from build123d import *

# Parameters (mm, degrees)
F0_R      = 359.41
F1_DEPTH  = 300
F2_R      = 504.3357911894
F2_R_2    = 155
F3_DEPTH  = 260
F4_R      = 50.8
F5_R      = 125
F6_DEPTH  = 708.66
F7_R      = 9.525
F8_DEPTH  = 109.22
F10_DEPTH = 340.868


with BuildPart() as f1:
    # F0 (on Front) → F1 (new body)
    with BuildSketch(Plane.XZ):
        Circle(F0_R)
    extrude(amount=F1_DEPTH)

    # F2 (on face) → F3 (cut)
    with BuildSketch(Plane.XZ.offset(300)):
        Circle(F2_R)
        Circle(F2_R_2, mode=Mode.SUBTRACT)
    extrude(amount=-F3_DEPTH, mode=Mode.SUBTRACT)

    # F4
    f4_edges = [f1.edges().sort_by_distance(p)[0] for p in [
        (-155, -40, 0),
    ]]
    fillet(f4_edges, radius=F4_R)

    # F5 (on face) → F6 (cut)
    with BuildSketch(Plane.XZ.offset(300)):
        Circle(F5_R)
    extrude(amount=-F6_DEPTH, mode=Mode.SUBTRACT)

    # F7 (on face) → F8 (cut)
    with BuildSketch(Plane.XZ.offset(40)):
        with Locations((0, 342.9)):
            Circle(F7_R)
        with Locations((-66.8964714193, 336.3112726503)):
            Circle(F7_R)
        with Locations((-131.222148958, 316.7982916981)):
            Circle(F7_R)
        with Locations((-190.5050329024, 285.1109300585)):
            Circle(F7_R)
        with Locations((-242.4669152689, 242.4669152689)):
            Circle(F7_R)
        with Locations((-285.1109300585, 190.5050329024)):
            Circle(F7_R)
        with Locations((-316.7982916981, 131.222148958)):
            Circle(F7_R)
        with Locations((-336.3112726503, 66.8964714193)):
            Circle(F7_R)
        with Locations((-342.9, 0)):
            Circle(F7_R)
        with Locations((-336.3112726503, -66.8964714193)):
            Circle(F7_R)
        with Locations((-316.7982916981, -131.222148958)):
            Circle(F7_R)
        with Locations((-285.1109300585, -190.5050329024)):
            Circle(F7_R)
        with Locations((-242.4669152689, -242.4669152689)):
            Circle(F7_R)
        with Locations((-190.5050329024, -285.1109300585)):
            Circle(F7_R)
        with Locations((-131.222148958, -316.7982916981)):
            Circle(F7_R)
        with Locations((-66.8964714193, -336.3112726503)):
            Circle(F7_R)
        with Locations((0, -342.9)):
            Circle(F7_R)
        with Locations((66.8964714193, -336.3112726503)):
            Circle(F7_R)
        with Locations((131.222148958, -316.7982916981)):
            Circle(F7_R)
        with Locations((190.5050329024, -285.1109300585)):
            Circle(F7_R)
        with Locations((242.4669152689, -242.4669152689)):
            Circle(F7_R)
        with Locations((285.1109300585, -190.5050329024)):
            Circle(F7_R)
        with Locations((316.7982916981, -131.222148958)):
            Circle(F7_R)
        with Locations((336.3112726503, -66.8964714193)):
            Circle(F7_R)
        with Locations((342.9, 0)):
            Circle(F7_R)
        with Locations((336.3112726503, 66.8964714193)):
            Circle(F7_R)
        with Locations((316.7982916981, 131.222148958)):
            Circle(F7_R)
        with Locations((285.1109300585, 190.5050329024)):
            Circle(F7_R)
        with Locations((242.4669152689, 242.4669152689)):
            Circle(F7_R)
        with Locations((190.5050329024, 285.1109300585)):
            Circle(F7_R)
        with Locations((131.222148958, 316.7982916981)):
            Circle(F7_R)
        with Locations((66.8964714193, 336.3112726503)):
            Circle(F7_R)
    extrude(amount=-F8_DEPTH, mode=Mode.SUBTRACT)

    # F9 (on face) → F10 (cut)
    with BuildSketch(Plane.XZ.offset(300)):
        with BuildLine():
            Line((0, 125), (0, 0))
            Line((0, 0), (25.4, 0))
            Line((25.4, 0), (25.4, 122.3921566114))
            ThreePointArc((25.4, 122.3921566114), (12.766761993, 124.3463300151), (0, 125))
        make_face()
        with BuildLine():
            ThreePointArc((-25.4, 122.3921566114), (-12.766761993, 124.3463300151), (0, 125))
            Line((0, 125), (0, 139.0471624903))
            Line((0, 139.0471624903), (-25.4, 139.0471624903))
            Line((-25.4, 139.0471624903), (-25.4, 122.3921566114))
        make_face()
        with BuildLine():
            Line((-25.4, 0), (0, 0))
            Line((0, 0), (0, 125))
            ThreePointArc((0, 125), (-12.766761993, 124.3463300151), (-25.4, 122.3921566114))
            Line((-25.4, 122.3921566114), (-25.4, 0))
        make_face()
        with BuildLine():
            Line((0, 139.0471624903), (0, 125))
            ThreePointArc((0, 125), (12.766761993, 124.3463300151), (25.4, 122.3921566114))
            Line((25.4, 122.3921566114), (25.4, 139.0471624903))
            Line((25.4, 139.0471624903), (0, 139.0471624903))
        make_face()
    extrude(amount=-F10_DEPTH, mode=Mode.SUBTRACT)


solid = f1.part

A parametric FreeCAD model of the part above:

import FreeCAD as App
import Part
import Sketcher
Q = App.Units.Quantity


def edges_at(feature, points):
    """Names of the edges that pass closest to the given points."""
    edges = feature.Shape.Edges
    near = lambda p: min(range(len(edges)), key=lambda i: edges[i].distToShape(Part.Vertex(*p))[0])
    return sorted({f"Edge{near(p) + 1}" for p in points})

doc = App.newDocument("Part")
body = doc.addObject("PartDesign::Body", "Body")

# Sketch on XZ plane
sketch1 = body.newObject("Sketcher::SketchObject", "Sketch")
sketch1.AttachmentSupport = (doc.getObject("XZ_Plane"), [""])
sketch1.MapMode = "FlatFace"
sketch1.addGeometry(Part.Circle(App.Vector(0, 0, 0), App.Vector(0, 0, 1), 359), False)
sketch1.addConstraint(Sketcher.Constraint("Coincident", 0, 3, -1, 1))
sketch1.addConstraint(Sketcher.Constraint("Diameter", 0, Q("28.3 in")))
pad1 = body.newObject("PartDesign::Pad", "Pad")
pad1.Profile = sketch1
pad1.Length = 300

# Sketch on XZ plane
sketch2 = body.newObject("Sketcher::SketchObject", "Sketch001")
sketch2.AttachmentSupport = (doc.getObject("XZ_Plane"), [""])
sketch2.MapMode = "FlatFace"
sketch2.AttachmentOffset = App.Placement(App.Vector(0, 0, 300), App.Rotation())
sketch2.addGeometry(Part.Circle(App.Vector(0, 0, 0), App.Vector(0, 0, 1), 504), False)
sketch2.addGeometry(Part.Circle(App.Vector(0, 0, 0), App.Vector(0, 0, 1), 155), False)
sketch2.addConstraint(Sketcher.Constraint("Coincident", 0, 3, -1, 1))
sketch2.addConstraint(Sketcher.Constraint("Coincident", 1, 3, -1, 1))
sketch2.addConstraint(Sketcher.Constraint("Diameter", 1, 310.0))
sketch2.addConstraint(Sketcher.Constraint("Diameter", 0, 1008.671582))
pocket1 = body.newObject("PartDesign::Pocket", "Pocket")
pocket1.Profile = sketch2
pocket1.Length = 260
doc.recompute()

fillet = body.newObject("PartDesign::Fillet", "Fillet")
fillet.Base = (pocket1, edges_at(pocket1, [(-155, -40, 0)]))
fillet.Radius = Q("2 in")

# Sketch on XZ plane
sketch3 = body.newObject("Sketcher::SketchObject", "Sketch002")
sketch3.AttachmentSupport = (doc.getObject("XZ_Plane"), [""])
sketch3.MapMode = "FlatFace"
sketch3.AttachmentOffset = App.Placement(App.Vector(0, 0, 300), App.Rotation())
sketch3.addGeometry(Part.Circle(App.Vector(0, 0, 0), App.Vector(0, 0, 1), 125), False)
sketch3.addConstraint(Sketcher.Constraint("Coincident", 0, 3, -1, 1))
sketch3.addConstraint(Sketcher.Constraint("Diameter", 0, 250.0))
pocket2 = body.newObject("PartDesign::Pocket", "Pocket001")
pocket2.Profile = sketch3
pocket2.Length = Q("27.9 in")

# Sketch on XZ plane
sketch4 = body.newObject("Sketcher::SketchObject", "Sketch003")
sketch4.AttachmentSupport = (doc.getObject("XZ_Plane"), [""])
sketch4.MapMode = "FlatFace"
sketch4.AttachmentOffset = App.Placement(App.Vector(0, 0, 40), App.Rotation())
sketch4.addGeometry(Part.Circle(App.Vector(0, 343, 0), App.Vector(0, 0, 1), 10), False)
sketch4.addGeometry(Part.Circle(App.Vector(-67, 336, 0), App.Vector(0, 0, 1), 10), False)
sketch4.addGeometry(Part.Circle(App.Vector(-131, 317, 0), App.Vector(0, 0, 1), 10), False)
sketch4.addGeometry(Part.Circle(App.Vector(-191, 285, 0), App.Vector(0, 0, 1), 10), False)
sketch4.addGeometry(Part.Circle(App.Vector(-242, 242, 0), App.Vector(0, 0, 1), 10), False)
sketch4.addGeometry(Part.Circle(App.Vector(-285, 191, 0), App.Vector(0, 0, 1), 10), False)
sketch4.addGeometry(Part.Circle(App.Vector(-317, 131, 0), App.Vector(0, 0, 1), 10), False)
sketch4.addGeometry(Part.Circle(App.Vector(-336, 67, 0), App.Vector(0, 0, 1), 10), False)
sketch4.addGeometry(Part.Circle(App.Vector(-343, 0, 0), App.Vector(0, 0, 1), 10), False)
sketch4.addGeometry(Part.Circle(App.Vector(-336, -67, 0), App.Vector(0, 0, 1), 10), False)
sketch4.addGeometry(Part.Circle(App.Vector(-317, -131, 0), App.Vector(0, 0, 1), 10), False)
sketch4.addGeometry(Part.Circle(App.Vector(-285, -191, 0), App.Vector(0, 0, 1), 10), False)
sketch4.addGeometry(Part.Circle(App.Vector(-242, -242, 0), App.Vector(0, 0, 1), 10), False)
sketch4.addGeometry(Part.Circle(App.Vector(-191, -285, 0), App.Vector(0, 0, 1), 10), False)
sketch4.addGeometry(Part.Circle(App.Vector(-131, -317, 0), App.Vector(0, 0, 1), 10), False)
sketch4.addGeometry(Part.Circle(App.Vector(-67, -336, 0), App.Vector(0, 0, 1), 10), False)
sketch4.addGeometry(Part.Circle(App.Vector(0, -343, 0), App.Vector(0, 0, 1), 10), False)
sketch4.addGeometry(Part.Circle(App.Vector(67, -336, 0), App.Vector(0, 0, 1), 10), False)
sketch4.addGeometry(Part.Circle(App.Vector(131, -317, 0), App.Vector(0, 0, 1), 10), False)
sketch4.addGeometry(Part.Circle(App.Vector(191, -285, 0), App.Vector(0, 0, 1), 10), False)
sketch4.addGeometry(Part.Circle(App.Vector(242, -242, 0), App.Vector(0, 0, 1), 10), False)
sketch4.addGeometry(Part.Circle(App.Vector(285, -191, 0), App.Vector(0, 0, 1), 10), False)
sketch4.addGeometry(Part.Circle(App.Vector(317, -131, 0), App.Vector(0, 0, 1), 10), False)
sketch4.addGeometry(Part.Circle(App.Vector(336, -67, 0), App.Vector(0, 0, 1), 10), False)
sketch4.addGeometry(Part.Circle(App.Vector(343, 0, 0), App.Vector(0, 0, 1), 10), False)
sketch4.addGeometry(Part.Circle(App.Vector(336, 67, 0), App.Vector(0, 0, 1), 10), False)
sketch4.addGeometry(Part.Circle(App.Vector(317, 131, 0), App.Vector(0, 0, 1), 10), False)
sketch4.addGeometry(Part.Circle(App.Vector(285, 191, 0), App.Vector(0, 0, 1), 10), False)
sketch4.addGeometry(Part.Circle(App.Vector(242, 242, 0), App.Vector(0, 0, 1), 10), False)
sketch4.addGeometry(Part.Circle(App.Vector(191, 285, 0), App.Vector(0, 0, 1), 10), False)
sketch4.addGeometry(Part.Circle(App.Vector(131, 317, 0), App.Vector(0, 0, 1), 10), False)
sketch4.addGeometry(Part.Circle(App.Vector(67, 336, 0), App.Vector(0, 0, 1), 10), False)
sketch4.addConstraint(Sketcher.Constraint("Equal", 0, 1))
sketch4.addConstraint(Sketcher.Constraint("Equal", 1, 2))
sketch4.addConstraint(Sketcher.Constraint("Equal", 2, 3))
sketch4.addConstraint(Sketcher.Constraint("Equal", 3, 4))
sketch4.addConstraint(Sketcher.Constraint("Equal", 4, 5))
sketch4.addConstraint(Sketcher.Constraint("Equal", 5, 6))
sketch4.addConstraint(Sketcher.Constraint("Equal", 6, 7))
sketch4.addConstraint(Sketcher.Constraint("Equal", 7, 8))
sketch4.addConstraint(Sketcher.Constraint("Equal", 8, 9))
sketch4.addConstraint(Sketcher.Constraint("Equal", 9, 10))
sketch4.addConstraint(Sketcher.Constraint("Equal", 10, 11))
sketch4.addConstraint(Sketcher.Constraint("Equal", 11, 12))
sketch4.addConstraint(Sketcher.Constraint("Equal", 12, 13))
sketch4.addConstraint(Sketcher.Constraint("Equal", 13, 14))
sketch4.addConstraint(Sketcher.Constraint("Equal", 14, 15))
sketch4.addConstraint(Sketcher.Constraint("Equal", 15, 16))
sketch4.addConstraint(Sketcher.Constraint("Equal", 16, 17))
sketch4.addConstraint(Sketcher.Constraint("Equal", 17, 18))
sketch4.addConstraint(Sketcher.Constraint("Equal", 18, 19))
sketch4.addConstraint(Sketcher.Constraint("Equal", 19, 20))
sketch4.addConstraint(Sketcher.Constraint("Equal", 20, 21))
sketch4.addConstraint(Sketcher.Constraint("Equal", 21, 22))
sketch4.addConstraint(Sketcher.Constraint("Equal", 22, 23))
sketch4.addConstraint(Sketcher.Constraint("Equal", 23, 24))
sketch4.addConstraint(Sketcher.Constraint("Equal", 24, 25))
sketch4.addConstraint(Sketcher.Constraint("Equal", 25, 26))
sketch4.addConstraint(Sketcher.Constraint("Equal", 26, 27))
sketch4.addConstraint(Sketcher.Constraint("Equal", 27, 28))
sketch4.addConstraint(Sketcher.Constraint("Equal", 28, 29))
sketch4.addConstraint(Sketcher.Constraint("Equal", 29, 30))
sketch4.addConstraint(Sketcher.Constraint("Equal", 30, 31))
sketch4.addConstraint(Sketcher.Constraint("Symmetric", 0, 3, 16, 3, -1, 1))
sketch4.addConstraint(Sketcher.Constraint("Symmetric", 1, 3, 17, 3, -1, 1))
sketch4.addConstraint(Sketcher.Constraint("Symmetric", 2, 3, 18, 3, -1, 1))
sketch4.addConstraint(Sketcher.Constraint("Symmetric", 3, 3, 19, 3, -1, 1))
sketch4.addConstraint(Sketcher.Constraint("Symmetric", 4, 3, 20, 3, -1, 1))
sketch4.addConstraint(Sketcher.Constraint("Symmetric", 5, 3, 21, 3, -1, 1))
sketch4.addConstraint(Sketcher.Constraint("Symmetric", 6, 3, 22, 3, -1, 1))
sketch4.addConstraint(Sketcher.Constraint("Symmetric", 7, 3, 23, 3, -1, 1))
sketch4.addConstraint(Sketcher.Constraint("Symmetric", 8, 3, 24, 3, -1, 1))
sketch4.addConstraint(Sketcher.Constraint("Symmetric", 9, 3, 25, 3, -1, 1))
sketch4.addConstraint(Sketcher.Constraint("Symmetric", 10, 3, 26, 3, -1, 1))
sketch4.addConstraint(Sketcher.Constraint("Symmetric", 11, 3, 27, 3, -1, 1))
sketch4.addConstraint(Sketcher.Constraint("Symmetric", 12, 3, 28, 3, -1, 1))
sketch4.addConstraint(Sketcher.Constraint("Symmetric", 13, 3, 29, 3, -1, 1))
sketch4.addConstraint(Sketcher.Constraint("Symmetric", 14, 3, 30, 3, -1, 1))
sketch4.addConstraint(Sketcher.Constraint("Symmetric", 15, 3, 31, 3, -1, 1))
sketch4.addConstraint(Sketcher.Constraint("Symmetric", 15, 3, 17, 3, -2))
sketch4.addConstraint(Sketcher.Constraint("Symmetric", 14, 3, 18, 3, -2))
sketch4.addConstraint(Sketcher.Constraint("Symmetric", 13, 3, 19, 3, -2))
sketch4.addConstraint(Sketcher.Constraint("Symmetric", 12, 3, 20, 3, -2))
sketch4.addConstraint(Sketcher.Constraint("Symmetric", 11, 3, 21, 3, -2))
sketch4.addConstraint(Sketcher.Constraint("Symmetric", 10, 3, 22, 3, -2))
sketch4.addConstraint(Sketcher.Constraint("Symmetric", 9, 3, 23, 3, -2))
sketch4.addConstraint(Sketcher.Constraint("PointOnObject", 0, 3, -2))
sketch4.addConstraint(Sketcher.Constraint("PointOnObject", 8, 3, -1))
sketch4.addConstraint(Sketcher.Constraint("Diameter", 0, Q("0.75 in")))
sketch4.addConstraint(Sketcher.Constraint("DistanceY", -1, 1, 0, 3, Q("13.5 in")))
sketch4.addConstraint(Sketcher.Constraint("DistanceX", 8, 3, -1, 1, Q("13.5 in")))
sketch4.addConstraint(Sketcher.Constraint("DistanceX", 1, 3, -1, 1, 66.896471))
sketch4.addConstraint(Sketcher.Constraint("DistanceX", 2, 3, -1, 1, 131.222149))
sketch4.addConstraint(Sketcher.Constraint("DistanceY", -1, 1, 2, 3, 316.798292))
sketch4.addConstraint(Sketcher.Constraint("DistanceY", -1, 1, 3, 3, 285.11093))
sketch4.addConstraint(Sketcher.Constraint("DistanceX", 5, 3, -1, 1, 285.11093))
sketch4.addConstraint(Sketcher.Constraint("DistanceX", 6, 3, -1, 1, 316.798292))
sketch4.addConstraint(Sketcher.Constraint("DistanceY", -1, 1, 6, 3, 131.222149))
sketch4.addConstraint(Sketcher.Constraint("DistanceY", -1, 1, 7, 3, 66.896471))
sketch4.addConstraint(Sketcher.Constraint("DistanceY", 2, 3, 1, 3, 19.512981))
sketch4.addConstraint(Sketcher.Constraint("DistanceX", 3, 3, 1, 3, 123.608561))
sketch4.addConstraint(Sketcher.Constraint("DistanceY", 5, 3, 2, 3, 126.293259))
sketch4.addConstraint(Sketcher.Constraint("DistanceX", 7, 3, 6, 3, 19.512981))
sketch4.addConstraint(Sketcher.Constraint("DistanceX", 4, 3, -1, 1, 242.466915))
sketch4.addConstraint(Sketcher.Constraint("DistanceY", -1, 1, 4, 3, 242.466915))
pocket3 = body.newObject("PartDesign::Pocket", "Pocket002")
pocket3.Profile = sketch4
pocket3.Length = Q("4.3 in")

# Sketch on XZ plane
sketch5 = body.newObject("Sketcher::SketchObject", "Sketch004")
sketch5.AttachmentSupport = (doc.getObject("XZ_Plane"), [""])
sketch5.MapMode = "FlatFace"
sketch5.AttachmentOffset = App.Placement(App.Vector(0, 0, 300), App.Rotation())
sketch5.addGeometry(Part.LineSegment(App.Vector(25, 0, 0), App.Vector(25, 139, 0)), False)
sketch5.addGeometry(Part.LineSegment(App.Vector(25, 139, 0), App.Vector(-25, 139, 0)), False)
sketch5.addGeometry(Part.LineSegment(App.Vector(-25, 139, 0), App.Vector(-25, 0, 0)), False)
sketch5.addGeometry(Part.LineSegment(App.Vector(-25, 0, 0), App.Vector(25, 0, 0)), False)
sketch5.addConstraint(Sketcher.Constraint("Coincident", 0, 2, 1, 1))
sketch5.addConstraint(Sketcher.Constraint("Coincident", 1, 2, 2, 1))
sketch5.addConstraint(Sketcher.Constraint("Coincident", 2, 2, 3, 1))
sketch5.addConstraint(Sketcher.Constraint("Coincident", 3, 2, 0, 1))
sketch5.addConstraint(Sketcher.Constraint("Vertical", 0))
sketch5.addConstraint(Sketcher.Constraint("Horizontal", 1))
sketch5.addConstraint(Sketcher.Constraint("Vertical", 2))
sketch5.addConstraint(Sketcher.Constraint("Horizontal", 3))
sketch5.addConstraint(Sketcher.Constraint("Symmetric", 2, 2, 3, 2, -1, 1))
sketch5.addConstraint(Sketcher.Constraint("DistanceX", 1, 2, 1, 1, Q("2 in")))
sketch5.addConstraint(Sketcher.Constraint("DistanceY", 0, 1, 0, 2, 139.047162))
pocket4 = body.newObject("PartDesign::Pocket", "Pocket003")
pocket4.Profile = sketch5
pocket4.Length = Q("13.42 in")

doc.recompute()
